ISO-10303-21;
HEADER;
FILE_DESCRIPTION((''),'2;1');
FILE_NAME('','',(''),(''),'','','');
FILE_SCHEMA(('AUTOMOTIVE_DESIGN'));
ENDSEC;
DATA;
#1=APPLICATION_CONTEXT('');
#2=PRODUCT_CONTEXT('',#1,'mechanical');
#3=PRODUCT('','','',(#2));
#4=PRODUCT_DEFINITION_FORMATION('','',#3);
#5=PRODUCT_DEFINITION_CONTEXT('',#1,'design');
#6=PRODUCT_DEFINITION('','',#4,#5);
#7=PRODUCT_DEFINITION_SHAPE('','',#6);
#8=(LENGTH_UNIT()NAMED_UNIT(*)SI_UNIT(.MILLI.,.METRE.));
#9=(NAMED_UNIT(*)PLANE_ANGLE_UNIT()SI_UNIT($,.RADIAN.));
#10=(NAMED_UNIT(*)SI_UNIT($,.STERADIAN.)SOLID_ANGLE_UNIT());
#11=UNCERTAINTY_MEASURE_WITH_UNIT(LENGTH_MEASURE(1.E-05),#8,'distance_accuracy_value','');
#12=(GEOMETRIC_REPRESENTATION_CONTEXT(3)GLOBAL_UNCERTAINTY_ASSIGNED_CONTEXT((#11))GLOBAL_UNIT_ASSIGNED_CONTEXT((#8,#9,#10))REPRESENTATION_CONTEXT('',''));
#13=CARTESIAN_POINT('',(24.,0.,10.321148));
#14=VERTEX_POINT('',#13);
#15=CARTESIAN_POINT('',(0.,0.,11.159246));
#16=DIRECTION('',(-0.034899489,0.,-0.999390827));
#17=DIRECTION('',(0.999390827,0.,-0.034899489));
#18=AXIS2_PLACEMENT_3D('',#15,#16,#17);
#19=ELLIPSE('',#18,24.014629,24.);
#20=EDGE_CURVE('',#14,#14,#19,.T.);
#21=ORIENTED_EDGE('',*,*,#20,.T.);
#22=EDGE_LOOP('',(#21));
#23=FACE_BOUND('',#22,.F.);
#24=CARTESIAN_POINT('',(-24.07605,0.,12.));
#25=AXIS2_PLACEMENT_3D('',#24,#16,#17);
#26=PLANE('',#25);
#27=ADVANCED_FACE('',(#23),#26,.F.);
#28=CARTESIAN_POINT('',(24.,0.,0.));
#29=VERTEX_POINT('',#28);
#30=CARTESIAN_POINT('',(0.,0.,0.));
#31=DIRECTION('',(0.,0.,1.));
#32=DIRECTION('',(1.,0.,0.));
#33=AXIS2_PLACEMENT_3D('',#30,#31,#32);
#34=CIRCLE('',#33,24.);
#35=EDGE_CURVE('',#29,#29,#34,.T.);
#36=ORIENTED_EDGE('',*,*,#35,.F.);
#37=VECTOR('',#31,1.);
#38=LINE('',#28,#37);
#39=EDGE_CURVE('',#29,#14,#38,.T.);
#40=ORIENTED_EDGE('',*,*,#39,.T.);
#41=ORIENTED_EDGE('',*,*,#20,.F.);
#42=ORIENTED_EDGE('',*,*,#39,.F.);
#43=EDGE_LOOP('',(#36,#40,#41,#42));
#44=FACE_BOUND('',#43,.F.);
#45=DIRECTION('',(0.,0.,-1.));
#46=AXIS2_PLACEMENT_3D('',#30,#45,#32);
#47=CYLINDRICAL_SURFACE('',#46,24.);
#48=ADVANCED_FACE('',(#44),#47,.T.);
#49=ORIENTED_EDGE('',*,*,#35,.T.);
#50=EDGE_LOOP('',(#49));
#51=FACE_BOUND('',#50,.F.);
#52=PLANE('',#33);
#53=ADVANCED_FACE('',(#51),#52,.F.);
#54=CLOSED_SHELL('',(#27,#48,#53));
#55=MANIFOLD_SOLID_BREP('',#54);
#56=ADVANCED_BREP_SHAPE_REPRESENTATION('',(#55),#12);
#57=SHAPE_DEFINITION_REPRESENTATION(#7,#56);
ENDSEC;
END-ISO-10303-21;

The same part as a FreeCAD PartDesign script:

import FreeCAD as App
import Part
import Sketcher

V = App.Vector
Q = App.Units.Quantity

doc = App.newDocument("Part")
params = doc.addObject("Spreadsheet::Sheet", "Params")
for row, (alias, value) in enumerate([
    ("sketch1_diameter", "48 mm"),
    ("pad1_length", "12 mm"),
    ("pocket1_length", "600 mm"),
], start=1):
    params.set(f"A{row}", alias)
    params.set(f"B{row}", "=" + value)
    params.setAlias(f"B{row}", alias)

body = doc.addObject("PartDesign::Body", "Body")

sketch1 = body.newObject("Sketcher::SketchObject", "Sketch")
sketch1.AttachmentSupport = (doc.getObject("XY_Plane"), [""])
sketch1.MapMode = "FlatFace"
sketch1.addGeometry(Part.Circle(V(0, 0, 0), V(0, 0, 1), 24), False)
sketch1.addConstraint([
    Sketcher.Constraint("Coincident", 0, 3, -1, 1),
    Sketcher.Constraint("Diameter", 0, Q("48 mm")),
])
sketch1.setExpression("Constraints[1]", "Params.sketch1_diameter")
pad1 = body.newObject("PartDesign::Pad", "Pad")
pad1.Profile = sketch1
pad1.setExpression("Length", "Params.pad1_length")

sketch2 = body.newObject("Sketcher::SketchObject", "Sketch001")
sketch2.AttachmentSupport = (doc.getObject("XZ_Plane"), [""])
sketch2.MapMode = "FlatFace"
sketch2.addGeometry([
    Part.LineSegment(V(-24, 20, 0), V(-24, 12, 0)),
    Part.LineSegment(V(-24, 12, 0), V(32, 10, 0)),
    Part.LineSegment(V(32, 10, 0), V(38, 18, 0)),
    Part.LineSegment(V(38, 18, 0), V(21, 20, 0)),
    Part.LineSegment(V(21, 20, 0), V(-24, 20, 0)),
], False)
sketch2.addConstraint([
    Sketcher.Constraint("Coincident", 0, 2, 1, 1),
    Sketcher.Constraint("Coincident", 1, 2, 2, 1),
    Sketcher.Constraint("Coincident", 2, 2, 3, 1),
    Sketcher.Constraint("Coincident", 3, 2, 4, 1),
    Sketcher.Constraint("Coincident", 4, 2, 0, 1),
    Sketcher.Constraint("Vertical", 0),
    Sketcher.Constraint("Horizontal", 4),
    Sketcher.Constraint("Angle", 1, Q("-2 deg")),
    Sketcher.Constraint("DistanceY", -1, 1, 0, 2, Q("12 mm")),
    Sketcher.Constraint("DistanceX", 4, 2, 4, 1, Q("45.274379 mm")),
    Sketcher.Constraint("DistanceY", 0, 2, 0, 1, Q("7.970432 mm")),
    Sketcher.Constraint("DistanceX", 0, 2, -1, 1, Q("24.07605 mm")),
    Sketcher.Constraint("DistanceY", -1, 1, 1, 2, Q("10.048239 mm")),
    Sketcher.Constraint("DistanceX", 1, 2, 2, 2, Q("6.565691 mm")),
    Sketcher.Constraint("Distance", 2, Q("10.108364 mm")),
])
pocket1 = body.newObject("PartDesign::Pocket", "Pocket")
pocket1.Profile = sketch2
pocket1.setExpression("Length", "Params.pocket1_length")
pocket1.Midplane = True

doc.recompute()
